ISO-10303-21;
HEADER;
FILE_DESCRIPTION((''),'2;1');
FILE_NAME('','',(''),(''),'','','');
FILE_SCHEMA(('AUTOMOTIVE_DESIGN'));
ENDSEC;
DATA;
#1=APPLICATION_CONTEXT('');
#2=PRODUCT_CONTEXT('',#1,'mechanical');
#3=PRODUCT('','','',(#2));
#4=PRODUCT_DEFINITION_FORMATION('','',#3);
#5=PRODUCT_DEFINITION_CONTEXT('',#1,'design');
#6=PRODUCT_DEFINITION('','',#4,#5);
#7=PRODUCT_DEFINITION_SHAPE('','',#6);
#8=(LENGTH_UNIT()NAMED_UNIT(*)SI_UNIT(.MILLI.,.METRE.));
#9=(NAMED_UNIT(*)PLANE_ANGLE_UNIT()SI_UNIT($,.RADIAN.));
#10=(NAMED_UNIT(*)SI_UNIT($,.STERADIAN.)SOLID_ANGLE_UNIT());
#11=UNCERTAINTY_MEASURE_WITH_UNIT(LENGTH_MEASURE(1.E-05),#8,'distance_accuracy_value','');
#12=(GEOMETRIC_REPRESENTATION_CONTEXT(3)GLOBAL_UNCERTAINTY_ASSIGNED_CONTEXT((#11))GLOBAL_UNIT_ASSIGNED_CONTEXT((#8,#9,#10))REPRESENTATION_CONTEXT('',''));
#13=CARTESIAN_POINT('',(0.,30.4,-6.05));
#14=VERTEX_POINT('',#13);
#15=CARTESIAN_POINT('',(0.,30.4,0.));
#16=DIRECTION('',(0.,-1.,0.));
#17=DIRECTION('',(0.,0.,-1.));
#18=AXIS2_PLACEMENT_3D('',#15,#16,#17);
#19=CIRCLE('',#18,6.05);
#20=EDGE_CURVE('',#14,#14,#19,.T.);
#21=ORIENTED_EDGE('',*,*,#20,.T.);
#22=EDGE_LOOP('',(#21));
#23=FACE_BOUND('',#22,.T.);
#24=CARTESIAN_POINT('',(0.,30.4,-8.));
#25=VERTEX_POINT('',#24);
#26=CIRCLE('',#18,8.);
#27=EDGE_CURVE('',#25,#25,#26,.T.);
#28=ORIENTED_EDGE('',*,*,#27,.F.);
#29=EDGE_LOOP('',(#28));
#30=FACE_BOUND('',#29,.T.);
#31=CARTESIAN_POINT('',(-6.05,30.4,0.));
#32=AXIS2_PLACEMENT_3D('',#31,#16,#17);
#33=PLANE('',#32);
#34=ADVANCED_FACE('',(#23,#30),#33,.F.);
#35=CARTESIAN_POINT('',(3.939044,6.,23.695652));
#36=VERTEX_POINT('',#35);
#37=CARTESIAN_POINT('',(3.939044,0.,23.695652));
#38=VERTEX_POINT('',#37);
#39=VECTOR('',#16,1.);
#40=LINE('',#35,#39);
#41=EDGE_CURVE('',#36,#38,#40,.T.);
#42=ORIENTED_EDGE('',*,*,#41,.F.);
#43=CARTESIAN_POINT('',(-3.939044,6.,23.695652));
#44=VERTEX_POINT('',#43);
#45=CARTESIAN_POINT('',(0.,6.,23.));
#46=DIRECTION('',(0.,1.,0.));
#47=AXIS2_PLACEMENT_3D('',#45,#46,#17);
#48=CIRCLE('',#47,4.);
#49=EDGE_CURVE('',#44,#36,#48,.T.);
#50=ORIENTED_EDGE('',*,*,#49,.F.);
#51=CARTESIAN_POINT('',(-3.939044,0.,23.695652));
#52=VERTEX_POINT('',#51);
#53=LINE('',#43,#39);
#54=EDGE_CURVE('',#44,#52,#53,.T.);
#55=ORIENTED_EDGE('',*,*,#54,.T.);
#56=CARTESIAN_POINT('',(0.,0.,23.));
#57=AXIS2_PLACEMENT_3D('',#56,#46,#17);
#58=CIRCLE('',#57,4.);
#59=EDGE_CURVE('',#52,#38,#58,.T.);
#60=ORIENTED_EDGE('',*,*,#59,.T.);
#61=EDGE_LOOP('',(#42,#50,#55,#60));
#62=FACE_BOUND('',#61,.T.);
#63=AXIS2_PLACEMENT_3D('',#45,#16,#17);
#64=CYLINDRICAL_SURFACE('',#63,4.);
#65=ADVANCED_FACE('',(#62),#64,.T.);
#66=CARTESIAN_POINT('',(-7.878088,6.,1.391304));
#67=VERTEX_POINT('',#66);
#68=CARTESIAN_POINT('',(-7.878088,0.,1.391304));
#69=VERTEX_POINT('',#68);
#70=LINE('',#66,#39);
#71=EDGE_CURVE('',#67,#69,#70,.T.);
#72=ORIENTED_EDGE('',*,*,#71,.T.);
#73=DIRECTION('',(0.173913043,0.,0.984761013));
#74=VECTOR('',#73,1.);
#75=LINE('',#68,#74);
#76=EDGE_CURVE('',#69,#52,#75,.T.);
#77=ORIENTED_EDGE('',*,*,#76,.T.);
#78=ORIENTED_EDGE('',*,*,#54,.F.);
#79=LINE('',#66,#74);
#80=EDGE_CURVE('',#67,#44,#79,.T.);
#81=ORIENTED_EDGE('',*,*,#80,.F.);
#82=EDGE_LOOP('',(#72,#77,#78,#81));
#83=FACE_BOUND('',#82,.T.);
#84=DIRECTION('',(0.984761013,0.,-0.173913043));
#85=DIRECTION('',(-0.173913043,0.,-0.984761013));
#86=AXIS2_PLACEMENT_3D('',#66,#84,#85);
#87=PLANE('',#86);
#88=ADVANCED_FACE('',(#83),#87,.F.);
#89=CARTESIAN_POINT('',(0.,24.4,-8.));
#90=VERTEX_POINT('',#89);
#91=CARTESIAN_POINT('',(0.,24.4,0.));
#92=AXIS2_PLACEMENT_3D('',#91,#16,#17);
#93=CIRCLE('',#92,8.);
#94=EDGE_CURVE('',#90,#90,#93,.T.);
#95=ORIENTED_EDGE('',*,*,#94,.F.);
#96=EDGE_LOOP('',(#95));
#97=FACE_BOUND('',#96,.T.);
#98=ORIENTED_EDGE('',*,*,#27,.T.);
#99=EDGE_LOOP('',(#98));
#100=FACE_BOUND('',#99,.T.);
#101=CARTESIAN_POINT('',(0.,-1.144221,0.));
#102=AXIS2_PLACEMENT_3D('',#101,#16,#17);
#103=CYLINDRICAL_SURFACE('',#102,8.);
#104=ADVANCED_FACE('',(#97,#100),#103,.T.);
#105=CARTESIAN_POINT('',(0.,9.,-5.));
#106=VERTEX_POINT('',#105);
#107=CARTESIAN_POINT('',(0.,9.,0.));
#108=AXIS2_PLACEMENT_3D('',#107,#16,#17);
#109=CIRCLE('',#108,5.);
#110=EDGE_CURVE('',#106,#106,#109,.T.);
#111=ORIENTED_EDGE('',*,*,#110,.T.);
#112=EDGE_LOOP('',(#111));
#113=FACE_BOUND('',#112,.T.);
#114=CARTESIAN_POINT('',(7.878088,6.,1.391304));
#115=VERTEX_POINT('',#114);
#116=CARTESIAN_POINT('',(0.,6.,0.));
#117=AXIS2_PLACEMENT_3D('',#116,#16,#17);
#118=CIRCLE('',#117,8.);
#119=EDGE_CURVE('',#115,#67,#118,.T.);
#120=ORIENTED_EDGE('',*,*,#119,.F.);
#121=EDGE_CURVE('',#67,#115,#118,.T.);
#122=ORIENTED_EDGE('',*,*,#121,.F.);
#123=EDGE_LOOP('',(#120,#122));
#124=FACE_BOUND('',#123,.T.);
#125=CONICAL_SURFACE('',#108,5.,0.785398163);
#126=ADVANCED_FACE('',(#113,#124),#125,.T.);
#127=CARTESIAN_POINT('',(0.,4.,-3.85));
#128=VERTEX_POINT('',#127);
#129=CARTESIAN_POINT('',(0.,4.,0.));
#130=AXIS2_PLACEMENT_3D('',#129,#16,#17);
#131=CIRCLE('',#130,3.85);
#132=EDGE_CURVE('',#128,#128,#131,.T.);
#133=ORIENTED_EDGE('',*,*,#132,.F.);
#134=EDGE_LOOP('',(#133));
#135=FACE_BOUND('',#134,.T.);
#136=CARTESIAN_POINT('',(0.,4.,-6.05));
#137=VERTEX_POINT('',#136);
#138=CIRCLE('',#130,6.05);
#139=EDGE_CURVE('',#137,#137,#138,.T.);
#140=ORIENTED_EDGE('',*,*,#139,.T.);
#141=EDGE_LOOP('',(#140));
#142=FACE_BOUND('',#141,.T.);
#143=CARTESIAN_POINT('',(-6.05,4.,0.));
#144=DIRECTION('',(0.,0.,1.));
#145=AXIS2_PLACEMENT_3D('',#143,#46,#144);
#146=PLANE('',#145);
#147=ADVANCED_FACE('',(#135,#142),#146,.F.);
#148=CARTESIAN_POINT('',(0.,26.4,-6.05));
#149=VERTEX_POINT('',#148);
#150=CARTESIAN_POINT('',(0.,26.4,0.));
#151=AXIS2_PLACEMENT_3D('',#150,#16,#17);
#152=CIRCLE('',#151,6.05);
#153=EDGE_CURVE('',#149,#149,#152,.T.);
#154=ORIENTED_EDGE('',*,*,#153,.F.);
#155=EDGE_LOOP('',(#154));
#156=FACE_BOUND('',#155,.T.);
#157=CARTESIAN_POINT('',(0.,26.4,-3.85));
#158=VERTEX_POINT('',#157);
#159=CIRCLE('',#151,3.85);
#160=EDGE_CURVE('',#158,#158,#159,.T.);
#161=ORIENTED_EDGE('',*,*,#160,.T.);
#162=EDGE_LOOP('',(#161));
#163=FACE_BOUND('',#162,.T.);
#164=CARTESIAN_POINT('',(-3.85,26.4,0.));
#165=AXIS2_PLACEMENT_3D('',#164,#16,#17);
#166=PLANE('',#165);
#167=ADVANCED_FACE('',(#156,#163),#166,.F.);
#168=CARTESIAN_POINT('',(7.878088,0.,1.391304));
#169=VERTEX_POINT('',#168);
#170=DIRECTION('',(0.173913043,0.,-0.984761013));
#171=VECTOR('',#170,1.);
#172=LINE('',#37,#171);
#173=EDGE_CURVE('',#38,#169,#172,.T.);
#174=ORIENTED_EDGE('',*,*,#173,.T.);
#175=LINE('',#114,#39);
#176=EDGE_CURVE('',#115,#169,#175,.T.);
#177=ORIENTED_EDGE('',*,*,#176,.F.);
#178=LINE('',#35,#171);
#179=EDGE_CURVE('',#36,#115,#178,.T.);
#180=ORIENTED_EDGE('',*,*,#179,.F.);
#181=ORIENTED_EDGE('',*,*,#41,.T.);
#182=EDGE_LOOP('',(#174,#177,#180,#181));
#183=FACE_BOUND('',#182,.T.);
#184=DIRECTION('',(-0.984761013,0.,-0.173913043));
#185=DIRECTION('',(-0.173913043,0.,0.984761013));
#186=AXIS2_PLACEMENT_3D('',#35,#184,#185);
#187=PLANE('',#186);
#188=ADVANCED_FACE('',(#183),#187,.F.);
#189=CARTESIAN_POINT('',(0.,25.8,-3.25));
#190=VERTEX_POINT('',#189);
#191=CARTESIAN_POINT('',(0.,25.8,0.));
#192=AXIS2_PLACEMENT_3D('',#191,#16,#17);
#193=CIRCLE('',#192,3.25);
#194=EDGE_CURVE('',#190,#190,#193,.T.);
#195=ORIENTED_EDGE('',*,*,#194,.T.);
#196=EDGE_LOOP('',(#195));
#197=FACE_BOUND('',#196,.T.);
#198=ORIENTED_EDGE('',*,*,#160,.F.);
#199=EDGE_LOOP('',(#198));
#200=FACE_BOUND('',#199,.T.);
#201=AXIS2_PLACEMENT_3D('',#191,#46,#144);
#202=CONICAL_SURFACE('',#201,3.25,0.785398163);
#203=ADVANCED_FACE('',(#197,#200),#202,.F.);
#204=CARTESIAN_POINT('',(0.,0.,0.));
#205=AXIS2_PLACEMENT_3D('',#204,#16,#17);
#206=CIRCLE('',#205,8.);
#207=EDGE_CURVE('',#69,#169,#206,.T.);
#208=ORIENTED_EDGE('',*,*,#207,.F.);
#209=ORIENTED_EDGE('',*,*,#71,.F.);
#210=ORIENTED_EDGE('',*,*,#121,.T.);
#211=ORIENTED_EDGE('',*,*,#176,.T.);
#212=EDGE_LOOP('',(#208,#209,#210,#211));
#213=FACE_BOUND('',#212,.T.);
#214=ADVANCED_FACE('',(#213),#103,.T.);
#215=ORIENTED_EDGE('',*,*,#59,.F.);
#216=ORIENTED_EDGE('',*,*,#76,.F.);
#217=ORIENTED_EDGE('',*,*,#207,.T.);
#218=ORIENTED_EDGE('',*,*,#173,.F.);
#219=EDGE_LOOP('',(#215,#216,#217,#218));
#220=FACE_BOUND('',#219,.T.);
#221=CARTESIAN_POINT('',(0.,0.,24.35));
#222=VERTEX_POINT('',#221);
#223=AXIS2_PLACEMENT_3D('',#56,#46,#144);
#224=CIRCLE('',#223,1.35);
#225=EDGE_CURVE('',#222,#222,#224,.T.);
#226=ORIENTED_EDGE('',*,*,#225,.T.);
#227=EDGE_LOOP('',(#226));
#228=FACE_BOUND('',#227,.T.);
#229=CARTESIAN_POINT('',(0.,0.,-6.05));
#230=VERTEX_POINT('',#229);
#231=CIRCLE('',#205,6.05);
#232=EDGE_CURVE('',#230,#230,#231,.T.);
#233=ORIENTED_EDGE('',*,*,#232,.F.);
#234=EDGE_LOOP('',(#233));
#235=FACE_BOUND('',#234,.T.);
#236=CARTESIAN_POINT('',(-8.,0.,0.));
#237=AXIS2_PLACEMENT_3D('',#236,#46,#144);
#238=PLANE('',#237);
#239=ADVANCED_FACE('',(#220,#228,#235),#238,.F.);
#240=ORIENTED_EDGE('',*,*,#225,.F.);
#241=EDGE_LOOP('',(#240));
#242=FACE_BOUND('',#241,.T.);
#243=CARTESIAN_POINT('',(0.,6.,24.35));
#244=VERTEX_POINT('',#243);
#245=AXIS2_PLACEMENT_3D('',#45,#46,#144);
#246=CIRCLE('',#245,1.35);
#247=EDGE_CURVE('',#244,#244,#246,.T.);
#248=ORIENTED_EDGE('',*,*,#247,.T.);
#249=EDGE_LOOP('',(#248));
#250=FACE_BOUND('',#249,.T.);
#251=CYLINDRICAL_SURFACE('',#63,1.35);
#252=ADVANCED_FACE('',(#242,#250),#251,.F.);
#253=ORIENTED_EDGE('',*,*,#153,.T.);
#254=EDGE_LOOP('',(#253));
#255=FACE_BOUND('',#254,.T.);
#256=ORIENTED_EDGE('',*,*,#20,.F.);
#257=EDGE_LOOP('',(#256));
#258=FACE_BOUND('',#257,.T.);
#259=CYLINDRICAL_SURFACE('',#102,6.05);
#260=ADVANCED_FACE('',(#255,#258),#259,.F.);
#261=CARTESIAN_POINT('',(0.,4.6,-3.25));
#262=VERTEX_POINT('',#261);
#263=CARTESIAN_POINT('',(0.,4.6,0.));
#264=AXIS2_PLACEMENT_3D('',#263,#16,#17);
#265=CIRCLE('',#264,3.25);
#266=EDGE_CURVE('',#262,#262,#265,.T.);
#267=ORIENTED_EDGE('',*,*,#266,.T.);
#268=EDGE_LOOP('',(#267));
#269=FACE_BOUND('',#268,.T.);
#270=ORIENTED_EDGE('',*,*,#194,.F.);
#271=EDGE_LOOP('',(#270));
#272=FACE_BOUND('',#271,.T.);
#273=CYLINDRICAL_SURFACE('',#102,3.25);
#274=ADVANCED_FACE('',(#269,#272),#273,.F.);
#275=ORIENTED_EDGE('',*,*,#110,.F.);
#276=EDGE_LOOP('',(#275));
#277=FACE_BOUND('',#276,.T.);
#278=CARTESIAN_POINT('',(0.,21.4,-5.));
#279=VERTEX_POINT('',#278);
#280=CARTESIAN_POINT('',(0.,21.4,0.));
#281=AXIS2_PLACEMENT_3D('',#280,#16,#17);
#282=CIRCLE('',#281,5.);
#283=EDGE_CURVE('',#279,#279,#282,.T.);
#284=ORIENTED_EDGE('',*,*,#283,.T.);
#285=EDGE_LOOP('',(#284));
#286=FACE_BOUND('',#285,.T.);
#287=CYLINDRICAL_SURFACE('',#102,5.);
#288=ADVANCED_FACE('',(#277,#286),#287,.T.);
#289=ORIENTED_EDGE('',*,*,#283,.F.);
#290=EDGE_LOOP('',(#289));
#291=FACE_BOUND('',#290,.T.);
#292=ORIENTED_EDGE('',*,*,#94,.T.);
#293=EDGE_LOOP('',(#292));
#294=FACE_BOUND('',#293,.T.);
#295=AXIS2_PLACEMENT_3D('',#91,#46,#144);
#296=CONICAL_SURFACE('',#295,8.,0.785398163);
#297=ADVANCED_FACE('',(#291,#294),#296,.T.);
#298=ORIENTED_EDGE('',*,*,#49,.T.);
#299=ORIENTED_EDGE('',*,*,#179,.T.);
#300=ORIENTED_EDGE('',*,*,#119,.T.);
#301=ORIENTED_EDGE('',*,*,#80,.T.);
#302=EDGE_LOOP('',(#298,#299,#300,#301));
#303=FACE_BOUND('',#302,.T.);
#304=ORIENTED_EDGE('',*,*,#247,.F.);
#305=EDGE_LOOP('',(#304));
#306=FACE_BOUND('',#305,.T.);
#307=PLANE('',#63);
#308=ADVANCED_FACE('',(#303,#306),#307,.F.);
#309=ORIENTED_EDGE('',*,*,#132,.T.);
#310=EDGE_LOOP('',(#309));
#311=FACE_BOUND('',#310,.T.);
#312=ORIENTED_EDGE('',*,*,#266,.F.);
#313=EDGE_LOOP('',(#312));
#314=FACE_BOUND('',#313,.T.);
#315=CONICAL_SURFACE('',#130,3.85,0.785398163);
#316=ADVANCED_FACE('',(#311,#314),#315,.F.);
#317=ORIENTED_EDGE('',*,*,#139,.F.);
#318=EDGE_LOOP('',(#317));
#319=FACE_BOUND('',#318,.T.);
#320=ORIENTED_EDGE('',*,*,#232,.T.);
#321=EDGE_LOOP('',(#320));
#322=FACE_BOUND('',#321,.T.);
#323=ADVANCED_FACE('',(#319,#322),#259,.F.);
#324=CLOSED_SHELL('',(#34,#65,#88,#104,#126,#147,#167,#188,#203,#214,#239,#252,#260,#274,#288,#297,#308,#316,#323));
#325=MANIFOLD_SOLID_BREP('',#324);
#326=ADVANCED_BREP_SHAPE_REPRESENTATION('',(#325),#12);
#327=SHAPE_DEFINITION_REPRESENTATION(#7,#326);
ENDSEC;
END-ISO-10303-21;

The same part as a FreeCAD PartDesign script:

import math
import FreeCAD as App
import Part
import Sketcher

V = App.Vector
Q = App.Units.Quantity


def add_polygon(sketch, points):
    """Adds a closed chain of lines whose ends are joined by coincident constraints."""
    first, n = sketch.GeometryCount, len(points)
    for a, b in zip(points, points[1:] + points[:1]):
        sketch.addGeometry(Part.LineSegment(App.Vector(*a, 0), App.Vector(*b, 0)), False)
    for i in range(n):
        sketch.addConstraint(Sketcher.Constraint("Coincident", first + i, 2, first + (i + 1) % n, 1))

doc = App.newDocument("Part")
body = doc.addObject("PartDesign::Body", "Body")

sketch1 = body.newObject("Sketcher::SketchObject", "Sketch")
sketch1.AttachmentSupport = (doc.getObject("XY_Plane"), [""])
sketch1.MapMode = "FlatFace"
add_polygon(sketch1, [(-6, 0), (-6, 4), (-3.9, 4), (-3.2, 4.6), (-3.2, 25.8), (-3.9, 26.4), (-6, 26.4), (-6, 30.4), (-8, 30.4), (-8, 24.4), (-5, 21.4), (-5, 9), (-8, 6), (-8, 0)])
sketch1.addConstraint([
    Sketcher.Constraint("Vertical", 0),
    Sketcher.Constraint("Horizontal", 1),
    Sketcher.Constraint("Vertical", 3),
    Sketcher.Constraint("Horizontal", 5),
    Sketcher.Constraint("Vertical", 6),
    Sketcher.Constraint("Horizontal", 7),
    Sketcher.Constraint("Vertical", 8),
    Sketcher.Constraint("Vertical", 10),
    Sketcher.Constraint("Vertical", 12),
    Sketcher.Constraint("Horizontal", 13),
    Sketcher.Constraint("PointOnObject", 12, 2, -1),
    Sketcher.Constraint("Perpendicular", 2, 4),
    Sketcher.Constraint("Parallel", 4, 9),
    Sketcher.Constraint("Perpendicular", 9, 11),
    Sketcher.Constraint("Vertical", 1, 2, 4, 2),
    Sketcher.Constraint("Vertical", 0, 2, 5, 2),
    Sketcher.Constraint("Vertical", 8, 2, 11, 2),
    Sketcher.Constraint("Equal", 0, 6),
    Sketcher.Constraint("Equal", 8, 12),
    Sketcher.Constraint("Equal", 2, 4),
    Sketcher.Constraint("DistanceY", 0, 1, 0, 2, Q("4 mm")),
    Sketcher.Constraint("DistanceY", 8, 2, 8, 1, Q("6 mm")),
    Sketcher.Constraint("DistanceX", 1, 1, 1, 2, Q("2.2 mm")),
    Sketcher.Constraint("DistanceY", 3, 1, 3, 2, Q("21.2 mm")),
    Sketcher.Constraint("DistanceY", 10, 2, 10, 1, Q("12.4 mm")),
    Sketcher.Constraint("DistanceX", 7, 2, -1, 1, Q("8 mm")),
    Sketcher.Constraint("DistanceX", 9, 2, -1, 1, Q("5 mm")),
    Sketcher.Constraint("DistanceX", 7, 2, 7, 1, Q("1.95 mm")),
])
revolution = body.newObject("PartDesign::Revolution", "Revolution")
revolution.Profile = sketch1
revolution.ReferenceAxis = (sketch1, ["V_Axis"])
revolution.Angle = 360

sketch2 = body.newObject("Sketcher::SketchObject", "Sketch001")
sketch2.AttachmentSupport = (doc.getObject("XZ_Plane"), [""])
sketch2.MapMode = "FlatFace"
sketch2.addGeometry([
    Part.LineSegment(V(-7.9, 1.4, 0), V(-3.9, 23.7, 0)),
    Part.ArcOfCircle(Part.Circle(V(0, 23, 0), V(0, 0, 1), 4), math.radians(10), math.radians(170)),
    Part.LineSegment(V(3.9, 23.7, 0), V(7.9, 1.4, 0)),
    Part.ArcOfCircle(Part.Circle(V(0, 0, 0), V(0, 0, 1), 8), math.radians(10), math.radians(170)),
    Part.Circle(V(0, 23, 0), V(0, 0, 1), 1.4),
], False)
sketch2.addConstraint([
    Sketcher.Constraint("Tangent", 0, 2, 1, 2),
    Sketcher.Constraint("Tangent", 1, 1, 2, 1),
    Sketcher.Constraint("Tangent", 2, 2, 3, 1),
    Sketcher.Constraint("Tangent", 3, 2, 0, 1),
    Sketcher.Constraint("Coincident", 3, 3, -1, 1),
    Sketcher.Constraint("Coincident", 4, 3, 1, 3),
    Sketcher.Constraint("PointOnObject", 1, 3, -2),
    Sketcher.Constraint("Radius", 1, Q("4 mm")),
    Sketcher.Constraint("Radius", 3, Q("8 mm")),
    Sketcher.Constraint("Diameter", 4, Q("2.7 mm")),
    Sketcher.Constraint("DistanceY", -1, 1, 1, 3, Q("23 mm")),
])
pad1 = body.newObject("PartDesign::Pad", "Pad")
pad1.Profile = sketch2
pad1.Length = 6
pad1.Reversed = True

doc.recompute()
